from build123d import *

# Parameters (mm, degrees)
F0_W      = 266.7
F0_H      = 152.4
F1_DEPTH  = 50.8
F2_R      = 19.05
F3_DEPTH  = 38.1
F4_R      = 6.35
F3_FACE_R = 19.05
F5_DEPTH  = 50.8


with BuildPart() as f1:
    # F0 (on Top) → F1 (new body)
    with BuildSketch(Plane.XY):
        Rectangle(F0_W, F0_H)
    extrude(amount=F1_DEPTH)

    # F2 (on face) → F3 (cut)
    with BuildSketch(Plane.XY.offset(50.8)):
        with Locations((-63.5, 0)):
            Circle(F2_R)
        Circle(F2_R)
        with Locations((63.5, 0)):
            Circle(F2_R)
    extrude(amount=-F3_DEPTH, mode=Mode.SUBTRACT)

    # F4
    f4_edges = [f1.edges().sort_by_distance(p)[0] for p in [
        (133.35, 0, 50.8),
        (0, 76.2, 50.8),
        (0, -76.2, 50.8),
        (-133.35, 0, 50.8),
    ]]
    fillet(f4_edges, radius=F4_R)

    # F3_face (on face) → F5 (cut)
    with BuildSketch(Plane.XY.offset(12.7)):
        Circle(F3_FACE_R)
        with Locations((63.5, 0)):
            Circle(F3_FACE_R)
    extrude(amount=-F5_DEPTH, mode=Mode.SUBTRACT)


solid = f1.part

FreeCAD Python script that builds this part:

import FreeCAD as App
import Part
import Sketcher
Q = App.Units.Quantity


def edges_at(feature, points):
    """Names of the edges that pass closest to the given points."""
    edges = feature.Shape.Edges
    near = lambda p: min(range(len(edges)), key=lambda i: edges[i].distToShape(Part.Vertex(*p))[0])
    return sorted({f"Edge{near(p) + 1}" for p in points})

doc = App.newDocument("Part")
body = doc.addObject("PartDesign::Body", "Body")

# Sketch on XY plane
sketch1 = doc.addObject("Sketcher::SketchObject", "Sketch")
body.addObject(sketch1)
sketch1.AttachmentSupport = (doc.XY_Plane, [""])
sketch1.MapMode = "FlatFace"
sketch1.addGeometry([
    Part.LineSegment(App.Vector(-133.35, 76.2, 0), App.Vector(-133.35, -76.2, 0)),
    Part.LineSegment(App.Vector(-133.35, -76.2, 0), App.Vector(133.35, -76.2, 0)),
    Part.LineSegment(App.Vector(133.35, -76.2, 0), App.Vector(133.35, 76.2, 0)),
    Part.LineSegment(App.Vector(133.35, 76.2, 0), App.Vector(-133.35, 76.2, 0)),
], False)
sketch1.addConstraint([
    Sketcher.Constraint("Coincident", 0, 2, 1, 1),
    Sketcher.Constraint("Coincident", 1, 2, 2, 1),
    Sketcher.Constraint("Coincident", 2, 2, 3, 1),
    Sketcher.Constraint("Coincident", 3, 2, 0, 1),
    Sketcher.Constraint("Vertical", 0),
    Sketcher.Constraint("Horizontal", 1),
    Sketcher.Constraint("Vertical", 2),
    Sketcher.Constraint("Horizontal", 3),
    Sketcher.Constraint("Symmetric", 0, 2, 2, 2, -1, 1),
    Sketcher.Constraint("DistanceY", 0, 2, 0, 1, Q("6 in")),
    Sketcher.Constraint("DistanceX", 1, 1, 1, 2, Q("10.5 in")),
])
pad1 = doc.addObject("PartDesign::Pad", "Pad")
body.addObject(pad1)
pad1.Profile = sketch1
pad1.Length = Q("2 in")

# Sketch on XY plane
sketch2 = doc.addObject("Sketcher::SketchObject", "Sketch001")
body.addObject(sketch2)
sketch2.AttachmentSupport = (doc.XY_Plane, [""])
sketch2.MapMode = "FlatFace"
sketch2.AttachmentOffset = App.Placement(App.Vector(0, 0, 2 * 25.4), App.Rotation())
sketch2.addGeometry([
    Part.Circle(App.Vector(-63.5, 0, 0), App.Vector(0, 0, 1), 19.05),
    Part.Circle(App.Vector(0, 0, 0), App.Vector(0, 0, 1), 19.05),
    Part.Circle(App.Vector(63.5, 0, 0), App.Vector(0, 0, 1), 19.05),
], False)
sketch2.addConstraint([
    Sketcher.Constraint("Coincident", 1, 3, -1, 1),
    Sketcher.Constraint("Equal", 0, 1),
    Sketcher.Constraint("Equal", 1, 2),
    Sketcher.Constraint("Symmetric", 0, 3, 2, 3, -1, 1),
    Sketcher.Constraint("PointOnObject", 0, 3, -1),
    Sketcher.Constraint("Diameter", 0, Q("1.5 in")),
    Sketcher.Constraint("DistanceX", 0, 3, 2, 3, Q("5 in")),
])
pocket1 = doc.addObject("PartDesign::Pocket", "Pocket")
body.addObject(pocket1)
pocket1.Profile = sketch2
pocket1.Length = Q("1.5 in")
doc.recompute()

fillet = doc.addObject("PartDesign::Fillet", "Fillet")
body.addObject(fillet)
fillet.Base = (pocket1, edges_at(pocket1, [
    (133.35, 0, 50.8),
    (0, 76.2, 50.8),
    (0, -76.2, 50.8),
    (-133.35, 0, 50.8),
]))
fillet.Radius = Q("0.25 in")

# Sketch on XY plane
sketch3 = doc.addObject("Sketcher::SketchObject", "Sketch002")
body.addObject(sketch3)
sketch3.AttachmentSupport = (doc.XY_Plane, [""])
sketch3.MapMode = "FlatFace"
sketch3.AttachmentOffset = App.Placement(App.Vector(0, 0, 0.5 * 25.4), App.Rotation())
sketch3.addGeometry([
    Part.Circle(App.Vector(0, 0, 0), App.Vector(0, 0, 1), 19.05),
    Part.Circle(App.Vector(63.5, 0, 0), App.Vector(0, 0, 1), 19.05),
], False)
sketch3.addConstraint([
    Sketcher.Constraint("Coincident", 0, 3, -1, 1),
    Sketcher.Constraint("Equal", 0, 1),
    Sketcher.Constraint("PointOnObject", 1, 3, -1),
    Sketcher.Constraint("Diameter", 0, Q("1.5 in")),
    Sketcher.Constraint("DistanceX", -1, 1, 1, 3, Q("2.5 in")),
])
pocket2 = doc.addObject("PartDesign::Pocket", "Pocket001")
body.addObject(pocket2)
pocket2.Profile = sketch3
pocket2.Length = Q("2 in")

doc.recompute()
